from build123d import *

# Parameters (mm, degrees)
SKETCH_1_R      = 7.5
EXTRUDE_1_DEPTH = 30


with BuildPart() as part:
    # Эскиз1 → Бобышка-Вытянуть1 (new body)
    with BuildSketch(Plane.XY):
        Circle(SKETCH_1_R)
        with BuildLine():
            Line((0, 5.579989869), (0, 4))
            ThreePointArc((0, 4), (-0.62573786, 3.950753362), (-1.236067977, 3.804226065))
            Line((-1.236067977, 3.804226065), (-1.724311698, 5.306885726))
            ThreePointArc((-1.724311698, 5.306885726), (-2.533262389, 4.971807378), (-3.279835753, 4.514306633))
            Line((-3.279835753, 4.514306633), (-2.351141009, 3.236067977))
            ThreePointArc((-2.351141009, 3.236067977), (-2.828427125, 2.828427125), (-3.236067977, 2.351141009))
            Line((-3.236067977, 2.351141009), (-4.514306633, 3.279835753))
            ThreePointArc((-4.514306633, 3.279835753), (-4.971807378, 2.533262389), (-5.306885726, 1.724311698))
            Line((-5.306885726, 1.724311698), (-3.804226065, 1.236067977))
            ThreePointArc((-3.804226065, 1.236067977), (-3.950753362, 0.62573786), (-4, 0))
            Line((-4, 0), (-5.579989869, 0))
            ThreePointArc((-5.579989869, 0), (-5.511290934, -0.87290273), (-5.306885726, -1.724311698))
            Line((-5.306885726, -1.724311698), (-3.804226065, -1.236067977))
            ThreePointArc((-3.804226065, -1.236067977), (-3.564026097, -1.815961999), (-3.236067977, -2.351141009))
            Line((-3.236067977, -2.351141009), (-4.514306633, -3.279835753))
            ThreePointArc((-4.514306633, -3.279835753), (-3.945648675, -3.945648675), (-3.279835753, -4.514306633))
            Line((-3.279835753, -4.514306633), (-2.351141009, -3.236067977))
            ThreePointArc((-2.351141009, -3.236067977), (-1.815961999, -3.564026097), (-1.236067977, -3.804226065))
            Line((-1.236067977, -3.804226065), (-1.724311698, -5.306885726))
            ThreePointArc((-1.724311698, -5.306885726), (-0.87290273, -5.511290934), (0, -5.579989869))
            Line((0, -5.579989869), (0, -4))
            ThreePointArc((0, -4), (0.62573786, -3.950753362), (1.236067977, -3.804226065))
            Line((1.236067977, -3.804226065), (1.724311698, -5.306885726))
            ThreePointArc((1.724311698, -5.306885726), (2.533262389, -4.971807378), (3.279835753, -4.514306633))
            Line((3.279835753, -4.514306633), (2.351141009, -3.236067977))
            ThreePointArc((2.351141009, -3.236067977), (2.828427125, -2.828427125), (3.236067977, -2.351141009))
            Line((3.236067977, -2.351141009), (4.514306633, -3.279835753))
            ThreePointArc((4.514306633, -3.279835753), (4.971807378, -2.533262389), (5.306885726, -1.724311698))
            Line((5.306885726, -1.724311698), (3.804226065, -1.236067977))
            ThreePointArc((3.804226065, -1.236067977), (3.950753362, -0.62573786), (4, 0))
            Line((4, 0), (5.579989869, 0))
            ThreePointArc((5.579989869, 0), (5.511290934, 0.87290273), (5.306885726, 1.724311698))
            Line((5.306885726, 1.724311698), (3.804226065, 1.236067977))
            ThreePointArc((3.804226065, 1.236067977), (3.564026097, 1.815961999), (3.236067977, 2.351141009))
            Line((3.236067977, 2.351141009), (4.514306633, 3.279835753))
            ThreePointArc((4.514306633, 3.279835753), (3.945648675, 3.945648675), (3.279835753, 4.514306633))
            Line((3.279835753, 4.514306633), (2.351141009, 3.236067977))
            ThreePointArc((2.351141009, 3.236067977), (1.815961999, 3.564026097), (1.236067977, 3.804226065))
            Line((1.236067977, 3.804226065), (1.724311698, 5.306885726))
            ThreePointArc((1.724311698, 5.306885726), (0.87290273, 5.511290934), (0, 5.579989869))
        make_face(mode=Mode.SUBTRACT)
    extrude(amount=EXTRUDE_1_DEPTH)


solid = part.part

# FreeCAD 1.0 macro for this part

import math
import FreeCAD as App
import Part
import Sketcher
from FreeCAD import Vector
Q = App.Units.Quantity

doc = App.newDocument("Part")
body = doc.addObject("PartDesign::Body", "Body")

# Sketch on XY plane
sketch1 = body.newObject("Sketcher::SketchObject", "Sketch")
sketch1.AttachmentSupport = (doc.getObject("XY_Plane"), [""])
sketch1.MapMode = "FlatFace"
sketch1.addGeometry([
    Part.Circle(Vector(0, 0, 0), Vector(0, 0, 1), 7.5),  # 0
    Part.LineSegment(Vector(0, 4, 0), Vector(0, 5.6, 0)),  # 1
    Part.ArcOfCircle(Part.Circle(Vector(0, 0, 0), Vector(0, 0, 1), 5.6), math.radians(72), math.radians(90)),  # 2
    Part.LineSegment(Vector(1.7, 5.3, 0), Vector(1.2, 3.8, 0)),  # 3
    Part.ArcOfCircle(Part.Circle(Vector(0, 0, 0), Vector(0, 0, 1), 4), math.radians(54), math.radians(72)),  # 4
    Part.LineSegment(Vector(2.4, 3.2, 0), Vector(3.3, 4.5, 0)),  # 5
    Part.ArcOfCircle(Part.Circle(Vector(0, 0, 0), Vector(0, 0, 1), 5.6), math.radians(36), math.radians(54)),  # 6
    Part.LineSegment(Vector(4.5, 3.3, 0), Vector(3.2, 2.4, 0)),  # 7
    Part.ArcOfCircle(Part.Circle(Vector(0, 0, 0), Vector(0, 0, 1), 4), math.radians(18), math.radians(36)),  # 8
    Part.LineSegment(Vector(3.8, 1.2, 0), Vector(5.3, 1.7, 0)),  # 9
    Part.ArcOfCircle(Part.Circle(Vector(0, 0, 0), Vector(0, 0, 1), 5.6), math.radians(0), math.radians(18)),  # 10
    Part.LineSegment(Vector(5.6, 0, 0), Vector(4, 0, 0)),  # 11
    Part.ArcOfCircle(Part.Circle(Vector(0, 0, 0), Vector(0, 0, 1), 4), math.radians(-18), math.radians(0)),  # 12
    Part.LineSegment(Vector(3.8, -1.2, 0), Vector(5.3, -1.7, 0)),  # 13
    Part.ArcOfCircle(Part.Circle(Vector(0, 0, 0), Vector(0, 0, 1), 5.6), math.radians(-36), math.radians(-18)),  # 14
    Part.LineSegment(Vector(4.5, -3.3, 0), Vector(3.2, -2.4, 0)),  # 15
    Part.ArcOfCircle(Part.Circle(Vector(0, 0, 0), Vector(0, 0, 1), 4), math.radians(-54), math.radians(-36)),  # 16
    Part.LineSegment(Vector(2.4, -3.2, 0), Vector(3.3, -4.5, 0)),  # 17
    Part.ArcOfCircle(Part.Circle(Vector(0, 0, 0), Vector(0, 0, 1), 5.6), math.radians(-72), math.radians(-54)),  # 18
    Part.LineSegment(Vector(1.7, -5.3, 0), Vector(1.2, -3.8, 0)),  # 19
    Part.ArcOfCircle(Part.Circle(Vector(0, 0, 0), Vector(0, 0, 1), 4), math.radians(-90), math.radians(-72)),  # 20
    Part.LineSegment(Vector(0, -4, 0), Vector(0, -5.6, 0)),  # 21
    Part.ArcOfCircle(Part.Circle(Vector(0, 0, 0), Vector(0, 0, 1), 5.6), math.radians(-108), math.radians(-90)),  # 22
    Part.LineSegment(Vector(-1.7, -5.3, 0), Vector(-1.2, -3.8, 0)),  # 23
    Part.ArcOfCircle(Part.Circle(Vector(0, 0, 0), Vector(0, 0, 1), 4), math.radians(-126), math.radians(-108)),  # 24
    Part.LineSegment(Vector(-2.4, -3.2, 0), Vector(-3.3, -4.5, 0)),  # 25
    Part.ArcOfCircle(Part.Circle(Vector(0, 0, 0), Vector(0, 0, 1), 5.6), math.radians(-144), math.radians(-126)),  # 26
    Part.LineSegment(Vector(-4.5, -3.3, 0), Vector(-3.2, -2.4, 0)),  # 27
    Part.ArcOfCircle(Part.Circle(Vector(0, 0, 0), Vector(0, 0, 1), 4), math.radians(-162), math.radians(-144)),  # 28
    Part.LineSegment(Vector(-3.8, -1.2, 0), Vector(-5.3, -1.7, 0)),  # 29
    Part.ArcOfCircle(Part.Circle(Vector(0, 0, 0), Vector(0, 0, 1), 5.6), math.radians(-180), math.radians(-162)),  # 30
    Part.LineSegment(Vector(-5.6, 0, 0), Vector(-4, 0, 0)),  # 31
    Part.ArcOfCircle(Part.Circle(Vector(0, 0, 0), Vector(0, 0, 1), 4), math.radians(162), math.radians(180)),  # 32
    Part.LineSegment(Vector(-3.8, 1.2, 0), Vector(-5.3, 1.7, 0)),  # 33
    Part.ArcOfCircle(Part.Circle(Vector(0, 0, 0), Vector(0, 0, 1), 5.6), math.radians(144), math.radians(162)),  # 34
    Part.LineSegment(Vector(-4.5, 3.3, 0), Vector(-3.2, 2.4, 0)),  # 35
    Part.ArcOfCircle(Part.Circle(Vector(0, 0, 0), Vector(0, 0, 1), 4), math.radians(126), math.radians(144)),  # 36
    Part.LineSegment(Vector(-2.4, 3.2, 0), Vector(-3.3, 4.5, 0)),  # 37
    Part.ArcOfCircle(Part.Circle(Vector(0, 0, 0), Vector(0, 0, 1), 5.6), math.radians(108), math.radians(126)),  # 38
    Part.LineSegment(Vector(-1.7, 5.3, 0), Vector(-1.2, 3.8, 0)),  # 39
    Part.ArcOfCircle(Part.Circle(Vector(0, 0, 0), Vector(0, 0, 1), 4), math.radians(90), math.radians(108)),  # 40
], False)
sketch1.addConstraint([
    Sketcher.Constraint("Coincident", 1, 2, 2, 2),
    Sketcher.Constraint("Coincident", 2, 1, 3, 1),
    Sketcher.Constraint("Coincident", 3, 2, 4, 2),
    Sketcher.Constraint("Coincident", 4, 1, 5, 1),
    Sketcher.Constraint("Coincident", 5, 2, 6, 2),
    Sketcher.Constraint("Coincident", 6, 1, 7, 1),
    Sketcher.Constraint("Coincident", 7, 2, 8, 2),
    Sketcher.Constraint("Coincident", 8, 1, 9, 1),
    Sketcher.Constraint("Coincident", 9, 2, 10, 2),
    Sketcher.Constraint("Coincident", 10, 1, 11, 1),
    Sketcher.Constraint("Coincident", 11, 2, 12, 2),
    Sketcher.Constraint("Coincident", 12, 1, 13, 1),
    Sketcher.Constraint("Coincident", 13, 2, 14, 2),
    Sketcher.Constraint("Coincident", 14, 1, 15, 1),
    Sketcher.Constraint("Coincident", 15, 2, 16, 2),
    Sketcher.Constraint("Coincident", 16, 1, 17, 1),
    Sketcher.Constraint("Coincident", 17, 2, 18, 2),
    Sketcher.Constraint("Coincident", 18, 1, 19, 1),
    Sketcher.Constraint("Coincident", 19, 2, 20, 2),
    Sketcher.Constraint("Coincident", 20, 1, 21, 1),
    Sketcher.Constraint("Coincident", 21, 2, 22, 2),
    Sketcher.Constraint("Coincident", 22, 1, 23, 1),
    Sketcher.Constraint("Coincident", 23, 2, 24, 2),
    Sketcher.Constraint("Coincident", 24, 1, 25, 1),
    Sketcher.Constraint("Coincident", 25, 2, 26, 2),
    Sketcher.Constraint("Coincident", 26, 1, 27, 1),
    Sketcher.Constraint("Coincident", 27, 2, 28, 2),
    Sketcher.Constraint("Coincident", 28, 1, 29, 1),
    Sketcher.Constraint("Coincident", 29, 2, 30, 2),
    Sketcher.Constraint("Coincident", 30, 1, 31, 1),
    Sketcher.Constraint("Coincident", 31, 2, 32, 2),
    Sketcher.Constraint("Coincident", 32, 1, 33, 1),
    Sketcher.Constraint("Coincident", 33, 2, 34, 2),
    Sketcher.Constraint("Coincident", 34, 1, 35, 1),
    Sketcher.Constraint("Coincident", 35, 2, 36, 2),
    Sketcher.Constraint("Coincident", 36, 1, 37, 1),
    Sketcher.Constraint("Coincident", 37, 2, 38, 2),
    Sketcher.Constraint("Coincident", 38, 1, 39, 1),
    Sketcher.Constraint("Coincident", 39, 2, 40, 2),
    Sketcher.Constraint("Coincident", 40, 1, 1, 1),
    Sketcher.Constraint("Vertical", 1),
    Sketcher.Constraint("Horizontal", 11),
    Sketcher.Constraint("Vertical", 21),
    Sketcher.Constraint("Horizontal", 31),
    Sketcher.Constraint("Coincident", 0, 3, -1, 1),
    Sketcher.Constraint("Coincident", 2, 3, -1, 1),
    Sketcher.Constraint("Coincident", 4, 3, -1, 1),
    Sketcher.Constraint("Coincident", 6, 3, -1, 1),
    Sketcher.Constraint("Coincident", 8, 3, -1, 1),
    Sketcher.Constraint("Coincident", 10, 3, -1, 1),
    Sketcher.Constraint("Coincident", 12, 3, -1, 1),
    Sketcher.Constraint("Coincident", 14, 3, -1, 1),
    Sketcher.Constraint("Coincident", 16, 3, -1, 1),
    Sketcher.Constraint("Coincident", 18, 3, -1, 1),
    Sketcher.Constraint("Coincident", 20, 3, -1, 1),
    Sketcher.Constraint("Coincident", 22, 3, -1, 1),
    Sketcher.Constraint("Coincident", 24, 3, -1, 1),
    Sketcher.Constraint("Coincident", 26, 3, -1, 1),
    Sketcher.Constraint("Coincident", 28, 3, -1, 1),
    Sketcher.Constraint("Coincident", 30, 3, -1, 1),
    Sketcher.Constraint("Coincident", 32, 3, -1, 1),
    Sketcher.Constraint("Coincident", 34, 3, -1, 1),
    Sketcher.Constraint("Coincident", 36, 3, -1, 1),
    Sketcher.Constraint("Coincident", 38, 3, -1, 1),
    Sketcher.Constraint("Coincident", 40, 3, -1, 1),
    Sketcher.Constraint("Equal", 2, 6),
    Sketcher.Constraint("Equal", 4, 8),
    Sketcher.Constraint("Equal", 6, 10),
    Sketcher.Constraint("Equal", 8, 12),
    Sketcher.Constraint("Equal", 10, 14),
    Sketcher.Constraint("Equal", 12, 16),
    Sketcher.Constraint("Equal", 14, 18),
    Sketcher.Constraint("Equal", 16, 20),
    Sketcher.Constraint("Equal", 18, 22),
    Sketcher.Constraint("Equal", 20, 24),
    Sketcher.Constraint("Equal", 22, 26),
    Sketcher.Constraint("Equal", 24, 28),
    Sketcher.Constraint("Equal", 26, 30),
    Sketcher.Constraint("Equal", 28, 32),
    Sketcher.Constraint("Equal", 30, 34),
    Sketcher.Constraint("Equal", 32, 36),
    Sketcher.Constraint("Equal", 34, 38),
    Sketcher.Constraint("Equal", 36, 40),
    Sketcher.Constraint("PointOnObject", 1, 2, -2),
    Sketcher.Constraint("PointOnObject", 10, 1, -1),
    Sketcher.Constraint("PointOnObject", 20, 1, -2),
    Sketcher.Constraint("PointOnObject", 30, 1, -1),
    Sketcher.Constraint("Perpendicular", 3, 13),
    Sketcher.Constraint("Perpendicular", 5, 15),
    Sketcher.Constraint("Perpendicular", 7, 17),
    Sketcher.Constraint("Perpendicular", 9, 19),
    Sketcher.Constraint("Perpendicular", 13, 23),
    Sketcher.Constraint("Perpendicular", 15, 25),
    Sketcher.Constraint("Perpendicular", 17, 27),
    Sketcher.Constraint("Perpendicular", 19, 29),
    Sketcher.Constraint("Perpendicular", 23, 33),
    Sketcher.Constraint("Perpendicular", 25, 35),
    Sketcher.Constraint("Perpendicular", 27, 37),
    Sketcher.Constraint("Perpendicular", 29, 39),
    Sketcher.Constraint("Horizontal", 18, 1, 22, 1),
    Sketcher.Constraint("Horizontal", 19, 2, 23, 2),
    Sketcher.Constraint("Horizontal", 16, 1, 24, 1),
    Sketcher.Constraint("Horizontal", 17, 2, 25, 2),
    Sketcher.Constraint("Horizontal", 14, 1, 26, 1),
    Sketcher.Constraint("Horizontal", 12, 1, 28, 1),
    Sketcher.Constraint("Horizontal", 8, 1, 32, 1),
    Sketcher.Constraint("Horizontal", 6, 1, 34, 1),
    Sketcher.Constraint("Horizontal", 4, 1, 36, 1),
    Sketcher.Constraint("Horizontal", 2, 1, 38, 1),
    Sketcher.Constraint("Vertical", 8, 1, 12, 1),
    Sketcher.Constraint("Vertical", 6, 1, 14, 1),
    Sketcher.Constraint("Vertical", 4, 1, 16, 1),
    Sketcher.Constraint("Vertical", 2, 1, 18, 1),
    Sketcher.Constraint("Diameter", 0, Q("15 mm")),
    Sketcher.Constraint("Radius", 4, Q("4 mm")),
    Sketcher.Constraint("Angle", 3, Q("-108 deg")),
    Sketcher.Constraint("Angle", 5, Q("54 deg")),
    Sketcher.Constraint("Radius", 2, Q("5.57999 mm")),
    Sketcher.Constraint("DistanceX", -1, 1, 2, 1, Q("1.724312 mm")),
    Sketcher.Constraint("DistanceX", -1, 1, 4, 1, Q("2.351141 mm")),
    Sketcher.Constraint("DistanceY", -1, 1, 7, 2, Q("2.351141 mm")),
    Sketcher.Constraint("DistanceY", -1, 1, 9, 2, Q("1.724312 mm")),
])
pad1 = body.newObject("PartDesign::Pad", "Pad")
pad1.Profile = sketch1
pad1.Length = 30

doc.recompute()
